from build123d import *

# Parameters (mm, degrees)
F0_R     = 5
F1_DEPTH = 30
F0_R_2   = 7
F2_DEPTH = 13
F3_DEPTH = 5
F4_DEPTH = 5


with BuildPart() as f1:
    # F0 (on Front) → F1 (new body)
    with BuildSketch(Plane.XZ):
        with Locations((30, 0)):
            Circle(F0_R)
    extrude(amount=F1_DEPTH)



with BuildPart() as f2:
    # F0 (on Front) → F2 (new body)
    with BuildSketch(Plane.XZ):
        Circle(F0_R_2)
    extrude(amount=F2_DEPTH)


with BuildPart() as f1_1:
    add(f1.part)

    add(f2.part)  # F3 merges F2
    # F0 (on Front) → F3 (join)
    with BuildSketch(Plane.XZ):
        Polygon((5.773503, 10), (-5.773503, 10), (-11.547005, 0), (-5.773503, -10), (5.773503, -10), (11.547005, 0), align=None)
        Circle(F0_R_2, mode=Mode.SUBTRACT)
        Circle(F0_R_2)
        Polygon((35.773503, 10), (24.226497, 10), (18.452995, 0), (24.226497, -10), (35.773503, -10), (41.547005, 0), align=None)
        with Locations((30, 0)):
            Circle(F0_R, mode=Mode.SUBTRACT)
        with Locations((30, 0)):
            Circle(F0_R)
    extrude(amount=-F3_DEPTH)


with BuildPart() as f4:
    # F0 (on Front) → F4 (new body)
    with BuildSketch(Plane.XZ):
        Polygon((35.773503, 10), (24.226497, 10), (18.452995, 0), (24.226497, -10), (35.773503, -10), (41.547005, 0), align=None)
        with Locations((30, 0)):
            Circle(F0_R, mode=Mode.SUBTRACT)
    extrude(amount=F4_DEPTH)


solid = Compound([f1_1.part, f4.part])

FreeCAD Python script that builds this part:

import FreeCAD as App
import Part
import Sketcher
Q = App.Units.Quantity


def add_polygon(sketch, points):
    """Adds a closed chain of lines whose ends are joined by coincident constraints."""
    first, n = sketch.GeometryCount, len(points)
    for a, b in zip(points, points[1:] + points[:1]):
        sketch.addGeometry(Part.LineSegment(App.Vector(*a, 0), App.Vector(*b, 0)), False)
    for i in range(n):
        sketch.addConstraint(Sketcher.Constraint("Coincident", first + i, 2, first + (i + 1) % n, 1))

doc = App.newDocument("Part")
body = doc.addObject("PartDesign::Body", "Body")

# Sketch on XZ plane
sketch1 = body.newObject("Sketcher::SketchObject", "Sketch")
sketch1.AttachmentSupport = (doc.getObject("XZ_Plane"), [""])
sketch1.MapMode = "FlatFace"
sketch1.addGeometry(Part.Circle(App.Vector(30, 0, 0), App.Vector(0, 0, 1), 5), False)
sketch1.addConstraint([
    Sketcher.Constraint("PointOnObject", 0, 3, -1),
    Sketcher.Constraint("Diameter", 0, 10.0),
    Sketcher.Constraint("DistanceX", -1, 1, 0, 3, 30.0),
])
pad1 = body.newObject("PartDesign::Pad", "Pad")
pad1.Profile = sketch1
pad1.Length = 30
body2 = doc.addObject("PartDesign::Body", "Body001")

# Sketch on XZ plane
sketch2 = body2.newObject("Sketcher::SketchObject", "Sketch001")
sketch2.AttachmentSupport = (doc.getObject("XZ_Plane001"), [""])
sketch2.MapMode = "FlatFace"
sketch2.addGeometry(Part.Circle(App.Vector(0, 0, 0), App.Vector(0, 0, 1), 7), False)
sketch2.addConstraint([
    Sketcher.Constraint("Coincident", 0, 3, -1, 1),
    Sketcher.Constraint("Diameter", 0, 14.0),
])
pad2 = body2.newObject("PartDesign::Pad", "Pad001")
pad2.Profile = sketch2
pad2.Length = 13
body.AllowCompound = True
doc.recompute()

boolean = body.newObject("PartDesign::Boolean", "Boolean")
boolean.Type = "Fuse"
boolean.addObjects([body2])

# Sketch on XZ plane
sketch3 = body.newObject("Sketcher::SketchObject", "Sketch002")
sketch3.AttachmentSupport = (doc.getObject("XZ_Plane"), [""])
sketch3.MapMode = "FlatFace"
add_polygon(sketch3, [(5.773503, 10), (-5.773503, 10), (-11.547005, 0), (-5.773503, -10), (5.773503, -10), (11.547005, 0)])  # lines 0-5
add_polygon(sketch3, [(35.773503, 10), (24.226497, 10), (18.452995, 0), (24.226497, -10), (35.773503, -10), (41.547005, 0)])  # lines 6-11
sketch3.addConstraint([
    Sketcher.Constraint("Horizontal", 0),
    Sketcher.Constraint("Horizontal", 3),
    Sketcher.Constraint("Horizontal", 6),
    Sketcher.Constraint("Horizontal", 9),
    Sketcher.Constraint("Symmetric", 0, 2, 3, 2, -1, 1),
    Sketcher.Constraint("Symmetric", 1, 2, 4, 2, -1, 1),
    Sketcher.Constraint("Symmetric", 6, 2, 8, 2, -1),
    Sketcher.Constraint("PointOnObject", 1, 2, -1),
    Sketcher.Constraint("PointOnObject", 7, 2, -1),
    Sketcher.Constraint("PointOnObject", 10, 2, -1),
    Sketcher.Constraint("Parallel", 2, 5),
    Sketcher.Constraint("Parallel", 4, 7),
    Sketcher.Constraint("Parallel", 5, 8),
    Sketcher.Constraint("Parallel", 7, 10),
    Sketcher.Constraint("Parallel", 8, 11),
    Sketcher.Constraint("Horizontal", 5, 2, 6, 2),
    Sketcher.Constraint("Equal", 3, 6),
    Sketcher.Constraint("Angle", 1, Q("-119.999997 deg")),
    Sketcher.Constraint("DistanceY", -1, 1, 0, 2, 10.0),
    Sketcher.Constraint("DistanceX", 0, 2, 6, 2, 30.0),
    Sketcher.Constraint("DistanceX", 0, 2, 0, 1, 11.547006),
])
pad3 = body.newObject("PartDesign::Pad", "Pad002")
pad3.Profile = sketch3
pad3.Length = 5
pad3.Reversed = True
body3 = doc.addObject("PartDesign::Body", "Body002")

# Sketch on XZ plane
sketch4 = body3.newObject("Sketcher::SketchObject", "Sketch003")
sketch4.AttachmentSupport = (doc.getObject("XZ_Plane002"), [""])
sketch4.MapMode = "FlatFace"
add_polygon(sketch4, [(35.773503, 10), (24.226497, 10), (18.452995, 0), (24.226497, -10), (35.773503, -10), (41.547005, 0)])  # lines 0-5
sketch4.addGeometry(Part.Circle(App.Vector(30, 0, 0), App.Vector(0, 0, 1), 5), False)  # 6
sketch4.addConstraint([
    Sketcher.Constraint("Horizontal", 0),
    Sketcher.Constraint("Horizontal", 3),
    Sketcher.Constraint("Symmetric", 0, 2, 2, 2, -1),
    Sketcher.Constraint("PointOnObject", 6, 3, -1),
    Sketcher.Constraint("PointOnObject", 1, 2, -1),
    Sketcher.Constraint("PointOnObject", 4, 2, -1),
    Sketcher.Constraint("Parallel", 1, 4),
    Sketcher.Constraint("Parallel", 2, 5),
    Sketcher.Constraint("Diameter", 6, 10.0),
    Sketcher.Constraint("Angle", 1, Q("-119.999997 deg")),
    Sketcher.Constraint("DistanceX", -1, 1, 6, 3, 30.0),
    Sketcher.Constraint("DistanceY", -1, 1, 0, 2, 10.0),
    Sketcher.Constraint("DistanceX", 0, 2, 0, 1, 11.547006),
    Sketcher.Constraint("DistanceX", -1, 1, 0, 2, 24.226497),
])
pad4 = body3.newObject("PartDesign::Pad", "Pad003")
pad4.Profile = sketch4
pad4.Length = 5

doc.recompute()
